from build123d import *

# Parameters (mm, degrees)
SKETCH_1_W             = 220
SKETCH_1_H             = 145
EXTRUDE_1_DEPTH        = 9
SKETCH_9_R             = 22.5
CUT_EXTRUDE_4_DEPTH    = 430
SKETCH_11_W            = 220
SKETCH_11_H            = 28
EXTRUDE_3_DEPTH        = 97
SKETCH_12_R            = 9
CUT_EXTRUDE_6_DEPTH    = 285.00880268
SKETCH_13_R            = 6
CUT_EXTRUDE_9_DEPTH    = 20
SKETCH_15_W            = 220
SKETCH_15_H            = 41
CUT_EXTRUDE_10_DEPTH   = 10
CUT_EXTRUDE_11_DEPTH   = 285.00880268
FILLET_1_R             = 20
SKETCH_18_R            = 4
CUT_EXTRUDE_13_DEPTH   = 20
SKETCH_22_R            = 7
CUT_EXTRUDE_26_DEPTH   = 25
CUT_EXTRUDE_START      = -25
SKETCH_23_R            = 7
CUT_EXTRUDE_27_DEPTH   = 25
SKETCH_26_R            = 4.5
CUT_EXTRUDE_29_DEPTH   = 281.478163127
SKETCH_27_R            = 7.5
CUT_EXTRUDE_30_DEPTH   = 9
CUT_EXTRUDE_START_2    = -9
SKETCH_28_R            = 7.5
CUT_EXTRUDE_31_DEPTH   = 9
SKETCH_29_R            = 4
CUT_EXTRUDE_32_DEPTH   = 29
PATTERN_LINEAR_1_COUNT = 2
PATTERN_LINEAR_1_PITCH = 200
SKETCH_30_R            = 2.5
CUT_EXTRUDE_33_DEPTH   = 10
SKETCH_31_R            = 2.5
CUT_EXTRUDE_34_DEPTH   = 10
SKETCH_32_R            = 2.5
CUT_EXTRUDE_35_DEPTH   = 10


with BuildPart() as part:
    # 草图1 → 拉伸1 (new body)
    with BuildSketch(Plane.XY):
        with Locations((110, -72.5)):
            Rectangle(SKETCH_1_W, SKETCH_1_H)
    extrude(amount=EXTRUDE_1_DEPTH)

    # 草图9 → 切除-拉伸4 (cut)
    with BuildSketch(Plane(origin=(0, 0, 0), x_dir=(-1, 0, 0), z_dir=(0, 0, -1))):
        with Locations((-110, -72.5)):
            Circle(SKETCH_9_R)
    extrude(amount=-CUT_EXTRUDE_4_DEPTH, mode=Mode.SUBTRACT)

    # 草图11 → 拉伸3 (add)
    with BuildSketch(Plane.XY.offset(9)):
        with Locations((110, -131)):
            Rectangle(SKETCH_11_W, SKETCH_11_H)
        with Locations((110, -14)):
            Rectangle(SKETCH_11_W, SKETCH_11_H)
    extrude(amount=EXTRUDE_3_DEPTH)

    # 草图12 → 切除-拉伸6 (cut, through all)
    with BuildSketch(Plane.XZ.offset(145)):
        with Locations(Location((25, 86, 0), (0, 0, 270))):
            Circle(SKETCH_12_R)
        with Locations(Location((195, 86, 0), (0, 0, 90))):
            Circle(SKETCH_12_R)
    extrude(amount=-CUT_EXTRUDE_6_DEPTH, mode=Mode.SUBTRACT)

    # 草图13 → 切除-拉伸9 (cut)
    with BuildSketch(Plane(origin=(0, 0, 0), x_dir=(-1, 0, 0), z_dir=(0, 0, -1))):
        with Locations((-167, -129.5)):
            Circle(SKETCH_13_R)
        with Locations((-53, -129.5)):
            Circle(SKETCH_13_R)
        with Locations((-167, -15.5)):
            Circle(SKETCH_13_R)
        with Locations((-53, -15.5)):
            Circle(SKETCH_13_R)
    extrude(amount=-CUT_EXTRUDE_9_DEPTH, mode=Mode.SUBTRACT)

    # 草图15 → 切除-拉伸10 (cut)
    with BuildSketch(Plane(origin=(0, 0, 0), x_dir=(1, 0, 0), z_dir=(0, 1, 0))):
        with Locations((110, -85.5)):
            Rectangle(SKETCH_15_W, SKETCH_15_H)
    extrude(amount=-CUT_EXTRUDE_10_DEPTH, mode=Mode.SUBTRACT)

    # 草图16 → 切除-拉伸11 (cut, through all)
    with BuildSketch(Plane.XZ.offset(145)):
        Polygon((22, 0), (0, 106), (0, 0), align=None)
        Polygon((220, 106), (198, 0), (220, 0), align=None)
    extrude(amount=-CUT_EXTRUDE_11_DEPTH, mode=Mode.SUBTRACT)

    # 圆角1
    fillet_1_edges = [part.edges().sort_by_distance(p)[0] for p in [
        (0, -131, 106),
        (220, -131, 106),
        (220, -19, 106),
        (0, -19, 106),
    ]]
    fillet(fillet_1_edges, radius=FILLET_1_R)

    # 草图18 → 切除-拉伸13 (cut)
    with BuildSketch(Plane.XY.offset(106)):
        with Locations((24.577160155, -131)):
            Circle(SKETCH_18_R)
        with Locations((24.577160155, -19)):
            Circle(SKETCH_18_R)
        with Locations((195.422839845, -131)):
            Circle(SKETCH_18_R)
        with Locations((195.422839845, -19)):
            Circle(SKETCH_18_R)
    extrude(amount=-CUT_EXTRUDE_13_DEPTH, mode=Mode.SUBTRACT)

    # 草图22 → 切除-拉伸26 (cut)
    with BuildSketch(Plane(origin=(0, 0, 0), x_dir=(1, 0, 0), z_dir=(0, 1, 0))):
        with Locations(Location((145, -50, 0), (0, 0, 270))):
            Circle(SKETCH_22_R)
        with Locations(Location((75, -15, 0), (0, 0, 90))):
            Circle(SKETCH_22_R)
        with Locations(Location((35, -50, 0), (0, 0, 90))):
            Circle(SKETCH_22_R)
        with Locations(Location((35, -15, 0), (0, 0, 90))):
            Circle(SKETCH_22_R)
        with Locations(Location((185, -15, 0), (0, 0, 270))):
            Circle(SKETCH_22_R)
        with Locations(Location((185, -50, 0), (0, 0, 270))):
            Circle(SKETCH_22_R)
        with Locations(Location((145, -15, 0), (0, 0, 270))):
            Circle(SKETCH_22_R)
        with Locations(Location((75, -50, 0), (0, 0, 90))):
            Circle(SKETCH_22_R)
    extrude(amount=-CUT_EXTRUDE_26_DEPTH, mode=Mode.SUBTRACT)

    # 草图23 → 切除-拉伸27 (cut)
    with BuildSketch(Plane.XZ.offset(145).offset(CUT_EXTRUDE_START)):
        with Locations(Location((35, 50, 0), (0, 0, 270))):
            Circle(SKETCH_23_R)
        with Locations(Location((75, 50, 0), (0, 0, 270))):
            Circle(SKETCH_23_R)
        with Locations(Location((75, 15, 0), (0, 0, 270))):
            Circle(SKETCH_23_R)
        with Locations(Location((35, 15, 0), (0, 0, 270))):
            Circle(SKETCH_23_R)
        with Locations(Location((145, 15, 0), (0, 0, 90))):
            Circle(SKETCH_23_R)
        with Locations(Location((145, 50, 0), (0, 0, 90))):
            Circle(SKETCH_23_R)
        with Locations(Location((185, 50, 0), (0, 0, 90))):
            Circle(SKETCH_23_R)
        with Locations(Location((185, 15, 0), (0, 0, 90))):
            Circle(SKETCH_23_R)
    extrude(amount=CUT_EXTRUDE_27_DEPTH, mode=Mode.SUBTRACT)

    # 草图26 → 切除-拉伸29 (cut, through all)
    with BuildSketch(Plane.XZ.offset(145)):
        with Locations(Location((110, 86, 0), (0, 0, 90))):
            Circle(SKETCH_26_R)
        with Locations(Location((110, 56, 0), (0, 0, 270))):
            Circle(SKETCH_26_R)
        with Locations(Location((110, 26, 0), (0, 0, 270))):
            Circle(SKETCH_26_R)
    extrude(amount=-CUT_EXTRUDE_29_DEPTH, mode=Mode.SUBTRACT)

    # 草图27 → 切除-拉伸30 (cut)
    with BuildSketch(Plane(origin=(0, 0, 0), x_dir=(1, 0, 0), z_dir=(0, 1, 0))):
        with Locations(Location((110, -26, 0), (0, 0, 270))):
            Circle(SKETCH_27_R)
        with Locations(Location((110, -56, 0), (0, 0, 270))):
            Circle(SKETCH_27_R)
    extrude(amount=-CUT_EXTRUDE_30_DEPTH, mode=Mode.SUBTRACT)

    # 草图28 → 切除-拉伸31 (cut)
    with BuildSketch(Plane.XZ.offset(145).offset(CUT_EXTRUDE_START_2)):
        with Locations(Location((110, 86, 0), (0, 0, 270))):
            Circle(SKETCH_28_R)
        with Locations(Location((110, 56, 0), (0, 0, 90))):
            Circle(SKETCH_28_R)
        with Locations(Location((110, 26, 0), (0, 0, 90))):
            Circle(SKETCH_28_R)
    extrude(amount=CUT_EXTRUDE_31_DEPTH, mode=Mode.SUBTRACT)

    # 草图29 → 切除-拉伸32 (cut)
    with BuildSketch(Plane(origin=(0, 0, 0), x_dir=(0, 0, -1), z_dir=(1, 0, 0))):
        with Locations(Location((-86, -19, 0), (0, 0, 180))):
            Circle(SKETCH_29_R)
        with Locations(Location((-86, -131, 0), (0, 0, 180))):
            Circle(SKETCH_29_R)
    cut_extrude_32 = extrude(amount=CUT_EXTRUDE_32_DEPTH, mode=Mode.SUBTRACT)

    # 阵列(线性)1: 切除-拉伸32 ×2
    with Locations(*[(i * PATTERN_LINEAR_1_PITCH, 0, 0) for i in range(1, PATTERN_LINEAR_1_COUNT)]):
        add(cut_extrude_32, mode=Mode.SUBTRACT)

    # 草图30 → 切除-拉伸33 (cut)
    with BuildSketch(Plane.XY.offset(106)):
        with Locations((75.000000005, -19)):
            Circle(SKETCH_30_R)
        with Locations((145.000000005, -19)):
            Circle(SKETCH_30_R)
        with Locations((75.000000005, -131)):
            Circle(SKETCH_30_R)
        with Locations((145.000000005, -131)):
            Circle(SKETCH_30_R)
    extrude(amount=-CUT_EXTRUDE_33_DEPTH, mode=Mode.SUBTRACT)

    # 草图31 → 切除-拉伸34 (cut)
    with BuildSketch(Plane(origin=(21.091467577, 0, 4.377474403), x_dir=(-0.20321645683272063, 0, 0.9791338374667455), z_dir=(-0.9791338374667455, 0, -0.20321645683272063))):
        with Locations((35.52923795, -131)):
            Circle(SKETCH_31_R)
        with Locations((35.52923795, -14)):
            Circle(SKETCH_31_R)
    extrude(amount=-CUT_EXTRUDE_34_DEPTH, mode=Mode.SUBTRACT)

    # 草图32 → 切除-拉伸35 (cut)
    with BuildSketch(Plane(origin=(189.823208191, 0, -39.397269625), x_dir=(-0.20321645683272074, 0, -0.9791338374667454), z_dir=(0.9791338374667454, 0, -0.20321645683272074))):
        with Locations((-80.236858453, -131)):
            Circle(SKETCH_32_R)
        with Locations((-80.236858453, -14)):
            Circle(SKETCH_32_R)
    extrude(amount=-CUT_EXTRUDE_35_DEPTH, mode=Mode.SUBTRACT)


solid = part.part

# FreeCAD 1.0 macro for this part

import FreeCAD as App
import Part
import Sketcher

V = App.Vector


def edges_at(feature, points):
    """Names of the edges that pass closest to the given points."""
    edges = feature.Shape.Edges
    near = lambda p: min(range(len(edges)), key=lambda i: edges[i].distToShape(Part.Vertex(*p))[0])
    return sorted({f"Edge{near(p) + 1}" for p in points})


def add_polygon(sketch, points):
    """Adds a closed chain of lines whose ends are joined by coincident constraints."""
    first, n = sketch.GeometryCount, len(points)
    for a, b in zip(points, points[1:] + points[:1]):
        sketch.addGeometry(Part.LineSegment(App.Vector(*a, 0), App.Vector(*b, 0)), False)
    for i in range(n):
        sketch.addConstraint(Sketcher.Constraint("Coincident", first + i, 2, first + (i + 1) % n, 1))

doc = App.newDocument("Part")
params = doc.addObject("Spreadsheet::Sheet", "Params")
for row, (alias, value) in enumerate([
    ("sketch1_width", "220 mm"),
    ("sketch1_height", "145 mm"),
    ("pad1_length", "9 mm"),
    ("sketch2_diameter", "45 mm"),
    ("pocket1_length", "430 mm"),
    ("sketch3_width", "220 mm"),
    ("sketch3_height", "28 mm"),
    ("pad2_length", "97 mm"),
    ("sketch4_diameter", "18 mm"),
    ("sketch5_diameter", "12 mm"),
    ("pocket3_length", "20 mm"),
    ("sketch6_width", "220 mm"),
    ("sketch6_height", "41 mm"),
    ("pocket4_length", "10 mm"),
    ("sketch7_width", "22 mm"),
    ("sketch7_height", "106 mm"),
    ("fillet_radius", "20 mm"),
    ("sketch8_diameter", "8 mm"),
    ("pocket6_length", "20 mm"),
    ("sketch9_diameter", "14 mm"),
    ("pocket7_length", "25 mm"),
    ("sketch10_diameter", "14 mm"),
    ("pocket8_length", "25 mm"),
    ("sketch11_diameter", "9 mm"),
    ("sketch12_diameter", "15 mm"),
    ("pocket10_length", "9 mm"),
    ("sketch13_diameter", "15 mm"),
    ("pocket11_length", "9 mm"),
    ("sketch14_diameter", "8 mm"),
    ("pocket12_length", "29 mm"),
    ("linearpattern_pitch", "200 mm"),
    ("sketch15_diameter", "5 mm"),
    ("pocket13_length", "10 mm"),
    ("sketch16_diameter", "5 mm"),
    ("pocket14_length", "10 mm"),
    ("sketch17_diameter", "5 mm"),
    ("pocket15_length", "10 mm"),
], start=1):
    params.set(f"A{row}", alias)
    params.set(f"B{row}", "=" + value)
    params.setAlias(f"B{row}", alias)

body = doc.addObject("PartDesign::Body", "Body")

# Sketch on XY plane
sketch1 = body.newObject("Sketcher::SketchObject", "Sketch")
sketch1.AttachmentSupport = (doc.getObject("XY_Plane"), [""])
sketch1.MapMode = "FlatFace"
add_polygon(sketch1, [(0, 0), (0, -145), (220, -145), (220, 0)])  # lines 0-3
sketch1.addConstraint([
    Sketcher.Constraint("Vertical", 0),
    Sketcher.Constraint("Horizontal", 1),
    Sketcher.Constraint("Vertical", 2),
    Sketcher.Constraint("Horizontal", 3),
    Sketcher.Constraint("Coincident", 3, 2, -1, 1),
    Sketcher.Constraint("DistanceX", 1, 1, 1, 2, 220.0),
    Sketcher.Constraint("DistanceY", 0, 2, 0, 1, 145.0),
])
sketch1.setExpression("Constraints[9]", "Params.sketch1_width")
sketch1.setExpression("Constraints[10]", "Params.sketch1_height")
pad1 = body.newObject("PartDesign::Pad", "Pad")
pad1.Profile = sketch1
pad1.setExpression("Length", "Params.pad1_length")

# Sketch on XY plane
sketch2 = body.newObject("Sketcher::SketchObject", "Sketch001")
sketch2.AttachmentSupport = (doc.getObject("XY_Plane"), [""])
sketch2.MapMode = "FlatFace"
sketch2.addGeometry(Part.Circle(V(110, -72, 0), V(0, 0, 1), 22), False)
sketch2.addConstraint([
    Sketcher.Constraint("Diameter", 0, 45.0),
    Sketcher.Constraint("DistanceX", -1, 1, 0, 3, 110.0),
    Sketcher.Constraint("DistanceY", 0, 3, -1, 1, 72.5),
])
sketch2.setExpression("Constraints[0]", "Params.sketch2_diameter")
pocket1 = body.newObject("PartDesign::Pocket", "Pocket")
pocket1.Profile = sketch2
pocket1.setExpression("Length", "Params.pocket1_length")
pocket1.Reversed = True

# Sketch on XY plane
sketch3 = body.newObject("Sketcher::SketchObject", "Sketch002")
sketch3.AttachmentSupport = (doc.getObject("XY_Plane"), [""])
sketch3.MapMode = "FlatFace"
sketch3.AttachmentOffset = App.Placement(V(0, 0, 9), App.Rotation())
add_polygon(sketch3, [(0, -117), (0, -145), (220, -145), (220, -117)])  # lines 0-3
add_polygon(sketch3, [(0, 0), (0, -28), (220, -28), (220, 0)])  # lines 4-7
sketch3.addConstraint([
    Sketcher.Constraint("Vertical", 0),
    Sketcher.Constraint("Horizontal", 1),
    Sketcher.Constraint("Vertical", 2),
    Sketcher.Constraint("Horizontal", 3),
    Sketcher.Constraint("Vertical", 4),
    Sketcher.Constraint("Horizontal", 5),
    Sketcher.Constraint("Vertical", 6),
    Sketcher.Constraint("Horizontal", 7),
    Sketcher.Constraint("Coincident", 7, 2, -1, 1),
    Sketcher.Constraint("PointOnObject", 0, 2, -2),
    Sketcher.Constraint("Vertical", 2, 2, 5, 2),
    Sketcher.Constraint("Equal", 2, 4),
    Sketcher.Constraint("DistanceX", 1, 1, 1, 2, 220.0),
    Sketcher.Constraint("DistanceY", 0, 2, 0, 1, 28.0),
    Sketcher.Constraint("DistanceY", 0, 2, -1, 1, 145.0),
])
sketch3.setExpression("Constraints[20]", "Params.sketch3_width")
sketch3.setExpression("Constraints[21]", "Params.sketch3_height")
pad2 = body.newObject("PartDesign::Pad", "Pad001")
pad2.Profile = sketch3
pad2.setExpression("Length", "Params.pad2_length")

# Sketch on XZ plane
sketch4 = body.newObject("Sketcher::SketchObject", "Sketch003")
sketch4.AttachmentSupport = (doc.getObject("XZ_Plane"), [""])
sketch4.MapMode = "FlatFace"
sketch4.AttachmentOffset = App.Placement(V(0, 0, 145), App.Rotation())
sketch4.addGeometry([
    Part.Circle(V(25, 86, 0), V(0, 0, 1), 9),
    Part.Circle(V(195, 86, 0), V(0, 0, 1), 9),
], False)
sketch4.addConstraint([
    Sketcher.Constraint("Equal", 0, 1),
    Sketcher.Constraint("Horizontal", 0, 3, 1, 3),
    Sketcher.Constraint("Diameter", 0, 18.0),
    Sketcher.Constraint("DistanceX", -1, 1, 0, 3, 25.0),
    Sketcher.Constraint("DistanceY", -1, 1, 0, 3, 86.0),
    Sketcher.Constraint("DistanceX", -1, 1, 1, 3, 195.0),
])
sketch4.setExpression("Constraints[2]", "Params.sketch4_diameter")
pocket2 = body.newObject("PartDesign::Pocket", "Pocket001")
pocket2.Profile = sketch4
pocket2.Type = "ThroughAll"

# Sketch on XY plane
sketch5 = body.newObject("Sketcher::SketchObject", "Sketch004")
sketch5.AttachmentSupport = (doc.getObject("XY_Plane"), [""])
sketch5.MapMode = "FlatFace"
sketch5.addGeometry([
    Part.Circle(V(167, -130, 0), V(0, 0, 1), 6),
    Part.Circle(V(53, -130, 0), V(0, 0, 1), 6),
    Part.Circle(V(167, -16, 0), V(0, 0, 1), 6),
    Part.Circle(V(53, -16, 0), V(0, 0, 1), 6),
], False)
sketch5.addConstraint([
    Sketcher.Constraint("Equal", 0, 1),
    Sketcher.Constraint("Equal", 1, 2),
    Sketcher.Constraint("Equal", 2, 3),
    Sketcher.Constraint("Horizontal", 0, 3, 1, 3),
    Sketcher.Constraint("Horizontal", 2, 3, 3, 3),
    Sketcher.Constraint("Vertical", 0, 3, 2, 3),
    Sketcher.Constraint("Vertical", 1, 3, 3, 3),
    Sketcher.Constraint("Diameter", 0, 12.0),
    Sketcher.Constraint("DistanceX", -1, 1, 0, 3, 167.0),
    Sketcher.Constraint("DistanceX", -1, 1, 1, 3, 53.0),
    Sketcher.Constraint("DistanceY", 0, 3, 2, 3, 114.0),
    Sketcher.Constraint("DistanceY", 0, 3, -1, 1, 129.5),
])
sketch5.setExpression("Constraints[7]", "Params.sketch5_diameter")
pocket3 = body.newObject("PartDesign::Pocket", "Pocket002")
pocket3.Profile = sketch5
pocket3.setExpression("Length", "Params.pocket3_length")
pocket3.Reversed = True

# Sketch on XZ plane
sketch6 = body.newObject("Sketcher::SketchObject", "Sketch005")
sketch6.AttachmentSupport = (doc.getObject("XZ_Plane"), [""])
sketch6.MapMode = "FlatFace"
add_polygon(sketch6, [(0, 65), (0, 106), (220, 106), (220, 65)])  # lines 0-3
sketch6.addConstraint([
    Sketcher.Constraint("Vertical", 0),
    Sketcher.Constraint("Horizontal", 1),
    Sketcher.Constraint("Vertical", 2),
    Sketcher.Constraint("Horizontal", 3),
    Sketcher.Constraint("PointOnObject", 0, 2, -2),
    Sketcher.Constraint("DistanceX", 1, 1, 1, 2, 220.0),
    Sketcher.Constraint("DistanceY", 0, 1, 0, 2, 41.0),
    Sketcher.Constraint("DistanceY", -1, 1, 0, 2, 106.0),
])
sketch6.setExpression("Constraints[9]", "Params.sketch6_width")
sketch6.setExpression("Constraints[10]", "Params.sketch6_height")
pocket4 = body.newObject("PartDesign::Pocket", "Pocket003")
pocket4.Profile = sketch6
pocket4.setExpression("Length", "Params.pocket4_length")
pocket4.Reversed = True

# Sketch on XZ plane
sketch7 = body.newObject("Sketcher::SketchObject", "Sketch006")
sketch7.AttachmentSupport = (doc.getObject("XZ_Plane"), [""])
sketch7.MapMode = "FlatFace"
sketch7.AttachmentOffset = App.Placement(V(0, 0, 145), App.Rotation())
add_polygon(sketch7, [(22, 0), (0, 106), (0, 0)])  # lines 0-2
add_polygon(sketch7, [(220, 106), (198, 0), (220, 0)])  # lines 3-5
sketch7.addConstraint([
    Sketcher.Constraint("Vertical", 1),
    Sketcher.Constraint("Horizontal", 2),
    Sketcher.Constraint("Horizontal", 4),
    Sketcher.Constraint("Vertical", 5),
    Sketcher.Constraint("Coincident", 1, 2, -1, 1),
    Sketcher.Constraint("PointOnObject", 3, 2, -1),
    Sketcher.Constraint("Horizontal", 0, 2, 5, 2),
    Sketcher.Constraint("Equal", 2, 4),
    Sketcher.Constraint("DistanceX", 2, 1, 2, 2, 22.0),
    Sketcher.Constraint("DistanceY", 1, 2, 1, 1, 106.0),
    Sketcher.Constraint("DistanceX", -1, 1, 3, 2, 198.0),
])
sketch7.setExpression("Constraints[14]", "Params.sketch7_width")
sketch7.setExpression("Constraints[15]", "Params.sketch7_height")
pocket5 = body.newObject("PartDesign::Pocket", "Pocket004")
pocket5.Profile = sketch7
pocket5.Type = "ThroughAll"
doc.recompute()

fillet = body.newObject("PartDesign::Fillet", "Fillet")
fillet.Base = (pocket5, edges_at(pocket5, [
    (0, -131, 106),
    (220, -131, 106),
    (220, -19, 106),
    (0, -19, 106),
]))
fillet.setExpression("Radius", "Params.fillet_radius")

# Sketch on XY plane
sketch8 = body.newObject("Sketcher::SketchObject", "Sketch007")
sketch8.AttachmentSupport = (doc.getObject("XY_Plane"), [""])
sketch8.MapMode = "FlatFace"
sketch8.AttachmentOffset = App.Placement(V(0, 0, 106), App.Rotation())
sketch8.addGeometry([
    Part.Circle(V(24.6, -131, 0), V(0, 0, 1), 4),
    Part.Circle(V(24.6, -19, 0), V(0, 0, 1), 4),
    Part.Circle(V(195.4, -131, 0), V(0, 0, 1), 4),
    Part.Circle(V(195.4, -19, 0), V(0, 0, 1), 4),
], False)
sketch8.addConstraint([
    Sketcher.Constraint("Equal", 0, 1),
    Sketcher.Constraint("Equal", 1, 2),
    Sketcher.Constraint("Equal", 2, 3),
    Sketcher.Constraint("Horizontal", 0, 3, 2, 3),
    Sketcher.Constraint("Horizontal", 1, 3, 3, 3),
    Sketcher.Constraint("Vertical", 0, 3, 1, 3),
    Sketcher.Constraint("Vertical", 2, 3, 3, 3),
    Sketcher.Constraint("Diameter", 0, 8.0),
    Sketcher.Constraint("DistanceY", 0, 3, -1, 1, 131.0),
    Sketcher.Constraint("DistanceY", 1, 3, -1, 1, 19.0),
    Sketcher.Constraint("DistanceX", -1, 1, 0, 3, 24.57716),
    Sketcher.Constraint("DistanceX", -1, 1, 2, 3, 195.42284),
])
sketch8.setExpression("Constraints[7]", "Params.sketch8_diameter")
pocket6 = body.newObject("PartDesign::Pocket", "Pocket005")
pocket6.Profile = sketch8
pocket6.setExpression("Length", "Params.pocket6_length")

# Sketch on XZ plane
sketch9 = body.newObject("Sketcher::SketchObject", "Sketch008")
sketch9.AttachmentSupport = (doc.getObject("XZ_Plane"), [""])
sketch9.MapMode = "FlatFace"
sketch9.addGeometry([
    Part.Circle(V(145, 50, 0), V(0, 0, 1), 7),  # 0
    Part.Circle(V(75, 15, 0), V(0, 0, 1), 7),  # 1
    Part.Circle(V(35, 50, 0), V(0, 0, 1), 7),  # 2
    Part.Circle(V(35, 15, 0), V(0, 0, 1), 7),  # 3
    Part.Circle(V(185, 15, 0), V(0, 0, 1), 7),  # 4
    Part.Circle(V(185, 50, 0), V(0, 0, 1), 7),  # 5
    Part.Circle(V(145, 15, 0), V(0, 0, 1), 7),  # 6
    Part.Circle(V(75, 50, 0), V(0, 0, 1), 7),  # 7
], False)
sketch9.addConstraint([
    Sketcher.Constraint("Equal", 0, 1),
    Sketcher.Constraint("Equal", 1, 2),
    Sketcher.Constraint("Equal", 2, 3),
    Sketcher.Constraint("Equal", 3, 4),
    Sketcher.Constraint("Equal", 4, 5),
    Sketcher.Constraint("Equal", 5, 6),
    Sketcher.Constraint("Equal", 6, 7),
    Sketcher.Constraint("Horizontal", 0, 3, 2, 3),
    Sketcher.Constraint("Horizontal", 1, 3, 3, 3),
    Sketcher.Constraint("Horizontal", 3, 3, 4, 3),
    Sketcher.Constraint("Horizontal", 2, 3, 5, 3),
    Sketcher.Constraint("Horizontal", 4, 3, 6, 3),
    Sketcher.Constraint("Horizontal", 5, 3, 7, 3),
    Sketcher.Constraint("Vertical", 2, 3, 3, 3),
    Sketcher.Constraint("Vertical", 4, 3, 5, 3),
    Sketcher.Constraint("Vertical", 0, 3, 6, 3),
    Sketcher.Constraint("Vertical", 1, 3, 7, 3),
    Sketcher.Constraint("Diameter", 0, 14.0),
    Sketcher.Constraint("DistanceX", -1, 1, 0, 3, 145.0),
    Sketcher.Constraint("DistanceY", -1, 1, 0, 3, 50.0),
    Sketcher.Constraint("DistanceX", -1, 1, 1, 3, 75.0),
    Sketcher.Constraint("DistanceY", -1, 1, 1, 3, 15.0),
    Sketcher.Constraint("DistanceX", -1, 1, 2, 3, 35.0),
    Sketcher.Constraint("DistanceX", -1, 1, 4, 3, 185.0),
])
sketch9.setExpression("Constraints[17]", "Params.sketch9_diameter")
pocket7 = body.newObject("PartDesign::Pocket", "Pocket006")
pocket7.Profile = sketch9
pocket7.setExpression("Length", "Params.pocket7_length")
pocket7.Reversed = True

# Sketch on XZ plane
sketch10 = body.newObject("Sketcher::SketchObject", "Sketch009")
sketch10.AttachmentSupport = (doc.getObject("XZ_Plane"), [""])
sketch10.MapMode = "FlatFace"
sketch10.AttachmentOffset = App.Placement(V(0, 0, 120), App.Rotation())
sketch10.addGeometry([
    Part.Circle(V(35, 50, 0), V(0, 0, 1), 7),  # 0
    Part.Circle(V(75, 50, 0), V(0, 0, 1), 7),  # 1
    Part.Circle(V(75, 15, 0), V(0, 0, 1), 7),  # 2
    Part.Circle(V(35, 15, 0), V(0, 0, 1), 7),  # 3
    Part.Circle(V(145, 15, 0), V(0, 0, 1), 7),  # 4
    Part.Circle(V(145, 50, 0), V(0, 0, 1), 7),  # 5
    Part.Circle(V(185, 50, 0), V(0, 0, 1), 7),  # 6
    Part.Circle(V(185, 15, 0), V(0, 0, 1), 7),  # 7
], False)
sketch10.addConstraint([
    Sketcher.Constraint("Equal", 0, 1),
    Sketcher.Constraint("Equal", 1, 2),
    Sketcher.Constraint("Equal", 2, 3),
    Sketcher.Constraint("Equal", 3, 4),
    Sketcher.Constraint("Equal", 4, 5),
    Sketcher.Constraint("Equal", 5, 6),
    Sketcher.Constraint("Equal", 6, 7),
    Sketcher.Constraint("Horizontal", 0, 3, 1, 3),
    Sketcher.Constraint("Horizontal", 2, 3, 3, 3),
    Sketcher.Constraint("Horizontal", 3, 3, 4, 3),
    Sketcher.Constraint("Horizontal", 1, 3, 5, 3),
    Sketcher.Constraint("Horizontal", 5, 3, 6, 3),
    Sketcher.Constraint("Horizontal", 4, 3, 7, 3),
    Sketcher.Constraint("Vertical", 1, 3, 2, 3),
    Sketcher.Constraint("Vertical", 0, 3, 3, 3),
    Sketcher.Constraint("Vertical", 4, 3, 5, 3),
    Sketcher.Constraint("Vertical", 6, 3, 7, 3),
    Sketcher.Constraint("Diameter", 0, 14.0),
    Sketcher.Constraint("DistanceX", -1, 1, 0, 3, 35.0),
    Sketcher.Constraint("DistanceY", -1, 1, 0, 3, 50.0),
    Sketcher.Constraint("DistanceX", -1, 1, 1, 3, 75.0),
    Sketcher.Constraint("DistanceY", -1, 1, 2, 3, 15.0),
    Sketcher.Constraint("DistanceX", -1, 1, 4, 3, 145.0),
    Sketcher.Constraint("DistanceX", -1, 1, 6, 3, 185.0),
])
sketch10.setExpression("Constraints[17]", "Params.sketch10_diameter")
pocket8 = body.newObject("PartDesign::Pocket", "Pocket007")
pocket8.Profile = sketch10
pocket8.setExpression("Length", "Params.pocket8_length")
pocket8.Reversed = True

# Sketch on XZ plane
sketch11 = body.newObject("Sketcher::SketchObject", "Sketch010")
sketch11.AttachmentSupport = (doc.getObject("XZ_Plane"), [""])
sketch11.MapMode = "FlatFace"
sketch11.AttachmentOffset = App.Placement(V(0, 0, 145), App.Rotation())
sketch11.addGeometry([
    Part.Circle(V(110, 86, 0), V(0, 0, 1), 4.5),
    Part.Circle(V(110, 56, 0), V(0, 0, 1), 4.5),
    Part.Circle(V(110, 26, 0), V(0, 0, 1), 4.5),
], False)
sketch11.addConstraint([
    Sketcher.Constraint("Equal", 0, 1),
    Sketcher.Constraint("Equal", 1, 2),
    Sketcher.Constraint("Vertical", 0, 3, 1, 3),
    Sketcher.Constraint("Vertical", 1, 3, 2, 3),
    Sketcher.Constraint("Diameter", 0, 9.0),
    Sketcher.Constraint("DistanceX", -1, 1, 0, 3, 110.0),
    Sketcher.Constraint("DistanceY", -1, 1, 0, 3, 86.0),
    Sketcher.Constraint("DistanceY", -1, 1, 1, 3, 56.0),
    Sketcher.Constraint("DistanceY", -1, 1, 2, 3, 26.0),
])
sketch11.setExpression("Constraints[4]", "Params.sketch11_diameter")
pocket9 = body.newObject("PartDesign::Pocket", "Pocket008")
pocket9.Profile = sketch11
pocket9.Type = "ThroughAll"

# Sketch on XZ plane
sketch12 = body.newObject("Sketcher::SketchObject", "Sketch011")
sketch12.AttachmentSupport = (doc.getObject("XZ_Plane"), [""])
sketch12.MapMode = "FlatFace"
sketch12.addGeometry([
    Part.Circle(V(110, 26, 0), V(0, 0, 1), 8),
    Part.Circle(V(110, 56, 0), V(0, 0, 1), 8),
], False)
sketch12.addConstraint([
    Sketcher.Constraint("Equal", 0, 1),
    Sketcher.Constraint("Vertical", 0, 3, 1, 3),
    Sketcher.Constraint("Diameter", 0, 15.0),
    Sketcher.Constraint("DistanceX", -1, 1, 0, 3, 110.0),
    Sketcher.Constraint("DistanceY", -1, 1, 0, 3, 26.0),
    Sketcher.Constraint("DistanceY", -1, 1, 1, 3, 56.0),
])
sketch12.setExpression("Constraints[2]", "Params.sketch12_diameter")
pocket10 = body.newObject("PartDesign::Pocket", "Pocket009")
pocket10.Profile = sketch12
pocket10.setExpression("Length", "Params.pocket10_length")
pocket10.Reversed = True

# Sketch on XZ plane
sketch13 = body.newObject("Sketcher::SketchObject", "Sketch012")
sketch13.AttachmentSupport = (doc.getObject("XZ_Plane"), [""])
sketch13.MapMode = "FlatFace"
sketch13.AttachmentOffset = App.Placement(V(0, 0, 136), App.Rotation())
sketch13.addGeometry([
    Part.Circle(V(110, 86, 0), V(0, 0, 1), 8),
    Part.Circle(V(110, 56, 0), V(0, 0, 1), 8),
    Part.Circle(V(110, 26, 0), V(0, 0, 1), 8),
], False)
sketch13.addConstraint([
    Sketcher.Constraint("Equal", 0, 1),
    Sketcher.Constraint("Equal", 1, 2),
    Sketcher.Constraint("Vertical", 0, 3, 1, 3),
    Sketcher.Constraint("Vertical", 1, 3, 2, 3),
    Sketcher.Constraint("Diameter", 0, 15.0),
    Sketcher.Constraint("DistanceX", -1, 1, 0, 3, 110.0),
    Sketcher.Constraint("DistanceY", -1, 1, 0, 3, 86.0),
    Sketcher.Constraint("DistanceY", -1, 1, 1, 3, 56.0),
    Sketcher.Constraint("DistanceY", -1, 1, 2, 3, 26.0),
])
sketch13.setExpression("Constraints[4]", "Params.sketch13_diameter")
pocket11 = body.newObject("PartDesign::Pocket", "Pocket010")
pocket11.Profile = sketch13
pocket11.setExpression("Length", "Params.pocket11_length")
pocket11.Reversed = True

# Sketch on YZ plane
sketch14 = body.newObject("Sketcher::SketchObject", "Sketch013")
sketch14.AttachmentSupport = (doc.getObject("YZ_Plane"), [""])
sketch14.MapMode = "FlatFace"
sketch14.addGeometry([
    Part.Circle(V(-19, 86, 0), V(0, 0, 1), 4),
    Part.Circle(V(-131, 86, 0), V(0, 0, 1), 4),
], False)
sketch14.addConstraint([
    Sketcher.Constraint("Equal", 0, 1),
    Sketcher.Constraint("Horizontal", 0, 3, 1, 3),
    Sketcher.Constraint("Diameter", 0, 8.0),
    Sketcher.Constraint("DistanceX", 0, 3, -1, 1, 19.0),
    Sketcher.Constraint("DistanceY", -1, 1, 0, 3, 86.0),
    Sketcher.Constraint("DistanceX", 1, 3, -1, 1, 131.0),
])
sketch14.setExpression("Constraints[2]", "Params.sketch14_diameter")
pocket12 = body.newObject("PartDesign::Pocket", "Pocket011")
pocket12.Profile = sketch14
pocket12.setExpression("Length", "Params.pocket12_length")
pocket12.Reversed = True
doc.recompute()

linearpattern = body.newObject("PartDesign::LinearPattern", "LinearPattern")
linearpattern.Originals = [pocket12]
linearpattern.Direction = (doc.getObject("X_Axis"), [""])
linearpattern.Mode = "offset"
linearpattern.setExpression("Offset", "Params.linearpattern_pitch")
linearpattern.Occurrences = 2
body.Tip = linearpattern

# Sketch on XY plane
sketch15 = body.newObject("Sketcher::SketchObject", "Sketch014")
sketch15.AttachmentSupport = (doc.getObject("XY_Plane"), [""])
sketch15.MapMode = "FlatFace"
sketch15.AttachmentOffset = App.Placement(V(0, 0, 106), App.Rotation())
sketch15.addGeometry([
    Part.Circle(V(75, -19, 0), V(0, 0, 1), 2.5),
    Part.Circle(V(145, -19, 0), V(0, 0, 1), 2.5),
    Part.Circle(V(75, -131, 0), V(0, 0, 1), 2.5),
    Part.Circle(V(145, -131, 0), V(0, 0, 1), 2.5),
], False)
sketch15.addConstraint([
    Sketcher.Constraint("Equal", 0, 1),
    Sketcher.Constraint("Equal", 1, 2),
    Sketcher.Constraint("Equal", 2, 3),
    Sketcher.Constraint("Horizontal", 0, 3, 1, 3),
    Sketcher.Constraint("Horizontal", 2, 3, 3, 3),
    Sketcher.Constraint("Vertical", 0, 3, 2, 3),
    Sketcher.Constraint("Vertical", 1, 3, 3, 3),
    Sketcher.Constraint("Diameter", 0, 5.0),
    Sketcher.Constraint("DistanceX", -1, 1, 0, 3, 75.0),
    Sketcher.Constraint("DistanceY", 0, 3, -1, 1, 19.0),
    Sketcher.Constraint("DistanceX", -1, 1, 1, 3, 145.0),
    Sketcher.Constraint("DistanceY", 2, 3, -1, 1, 131.0),
])
sketch15.setExpression("Constraints[7]", "Params.sketch15_diameter")
pocket13 = body.newObject("PartDesign::Pocket", "Pocket012")
pocket13.Profile = sketch15
pocket13.setExpression("Length", "Params.pocket13_length")

# Sketch on an angled plane
sketch16 = body.newObject("Sketcher::SketchObject", "Sketch015")
sketch16.Placement = App.Placement(V(21.091468, 0, 4.377474), App.Rotation(V(-0.203216457, 0, 0.979133837), V(0, 0.999999999, 0), V(-0.979133837, 0, -0.203216457), "ZXY"))
sketch16.addGeometry([
    Part.Circle(V(35.5, -131, 0), V(0, 0, 1), 2.5),
    Part.Circle(V(35.5, -14, 0), V(0, 0, 1), 2.5),
], False)
sketch16.addConstraint([
    Sketcher.Constraint("Equal", 0, 1),
    Sketcher.Constraint("Vertical", 0, 3, 1, 3),
    Sketcher.Constraint("Diameter", 0, 5.0),
    Sketcher.Constraint("DistanceY", 0, 3, -1, 1, 131.0),
    Sketcher.Constraint("DistanceY", 1, 3, -1, 1, 14.0),
    Sketcher.Constraint("DistanceX", -1, 1, 0, 3, 35.529238),
])
sketch16.setExpression("Constraints[2]", "Params.sketch16_diameter")
pocket14 = body.newObject("PartDesign::Pocket", "Pocket013")
pocket14.Profile = sketch16
pocket14.setExpression("Length", "Params.pocket14_length")

# Sketch on an angled plane
sketch17 = body.newObject("Sketcher::SketchObject", "Sketch016")
sketch17.Placement = App.Placement(V(189.823208, 0, -39.39727), App.Rotation(V(-0.203216457, 0, -0.979133837), V(0, 0.999999999, 0), V(0.979133837, 0, -0.203216457), "ZXY"))
sketch17.addGeometry([
    Part.Circle(V(-80.2, -131, 0), V(0, 0, 1), 2.5),
    Part.Circle(V(-80.2, -14, 0), V(0, 0, 1), 2.5),
], False)
sketch17.addConstraint([
    Sketcher.Constraint("Equal", 0, 1),
    Sketcher.Constraint("Vertical", 0, 3, 1, 3),
    Sketcher.Constraint("Diameter", 0, 5.0),
    Sketcher.Constraint("DistanceY", 0, 3, -1, 1, 131.0),
    Sketcher.Constraint("DistanceY", 1, 3, -1, 1, 14.0),
    Sketcher.Constraint("DistanceX", 0, 3, -1, 1, 80.236858),
])
sketch17.setExpression("Constraints[2]", "Params.sketch17_diameter")
pocket15 = body.newObject("PartDesign::Pocket", "Pocket014")
pocket15.Profile = sketch17
pocket15.setExpression("Length", "Params.pocket15_length")

doc.recompute()
